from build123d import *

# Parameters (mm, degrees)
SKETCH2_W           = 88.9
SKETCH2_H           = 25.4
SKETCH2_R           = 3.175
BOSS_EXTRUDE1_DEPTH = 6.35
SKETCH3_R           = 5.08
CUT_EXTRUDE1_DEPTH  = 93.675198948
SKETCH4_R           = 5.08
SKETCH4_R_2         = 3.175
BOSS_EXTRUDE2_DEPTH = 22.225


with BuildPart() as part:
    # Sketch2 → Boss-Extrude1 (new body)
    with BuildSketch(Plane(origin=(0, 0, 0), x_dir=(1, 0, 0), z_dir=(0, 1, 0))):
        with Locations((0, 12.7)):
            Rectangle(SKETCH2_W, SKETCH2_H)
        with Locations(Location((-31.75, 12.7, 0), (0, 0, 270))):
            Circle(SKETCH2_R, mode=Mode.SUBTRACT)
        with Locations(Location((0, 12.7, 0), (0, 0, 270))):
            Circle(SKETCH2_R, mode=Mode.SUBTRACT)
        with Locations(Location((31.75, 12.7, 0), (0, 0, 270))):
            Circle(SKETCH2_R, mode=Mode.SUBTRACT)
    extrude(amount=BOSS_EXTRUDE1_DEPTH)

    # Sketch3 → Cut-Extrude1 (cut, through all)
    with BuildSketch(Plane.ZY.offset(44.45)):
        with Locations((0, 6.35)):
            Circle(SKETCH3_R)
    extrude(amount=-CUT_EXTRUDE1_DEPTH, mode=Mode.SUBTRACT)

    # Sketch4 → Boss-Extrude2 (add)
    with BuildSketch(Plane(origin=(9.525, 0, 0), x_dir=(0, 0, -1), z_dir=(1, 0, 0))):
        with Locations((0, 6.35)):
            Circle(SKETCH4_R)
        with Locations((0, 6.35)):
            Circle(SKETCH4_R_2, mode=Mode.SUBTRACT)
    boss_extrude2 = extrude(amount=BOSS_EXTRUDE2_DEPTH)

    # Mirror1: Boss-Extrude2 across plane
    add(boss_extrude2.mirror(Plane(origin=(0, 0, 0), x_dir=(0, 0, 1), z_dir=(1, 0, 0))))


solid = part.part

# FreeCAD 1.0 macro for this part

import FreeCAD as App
import Part
import Sketcher
Q = App.Units.Quantity

doc = App.newDocument("Part")
body = doc.addObject("PartDesign::Body", "Body")

sketch1 = doc.addObject("Sketcher::SketchObject", "Sketch")
body.addObject(sketch1)
sketch1.AttachmentSupport = (doc.XZ_Plane, [""])
sketch1.MapMode = "FlatFace"
sketch1.addGeometry([
    Part.LineSegment(App.Vector(-44.5, -25.4, 0), App.Vector(-44.5, 0, 0)),
    Part.LineSegment(App.Vector(-44.5, 0, 0), App.Vector(44.5, 0, 0)),
    Part.LineSegment(App.Vector(44.5, 0, 0), App.Vector(44.5, -25.4, 0)),
    Part.LineSegment(App.Vector(44.5, -25.4, 0), App.Vector(-44.5, -25.4, 0)),
    Part.Circle(App.Vector(-31.8, -12.7, 0), App.Vector(0, 0, 1), 3.2),
    Part.Circle(App.Vector(0, -12.7, 0), App.Vector(0, 0, 1), 3.2),
    Part.Circle(App.Vector(31.8, -12.7, 0), App.Vector(0, 0, 1), 3.2),
], False)
sketch1.addConstraint([
    Sketcher.Constraint("Coincident", 0, 2, 1, 1),
    Sketcher.Constraint("Coincident", 1, 2, 2, 1),
    Sketcher.Constraint("Coincident", 2, 2, 3, 1),
    Sketcher.Constraint("Coincident", 3, 2, 0, 1),
    Sketcher.Constraint("Vertical", 0),
    Sketcher.Constraint("Horizontal", 1),
    Sketcher.Constraint("Vertical", 2),
    Sketcher.Constraint("Horizontal", 3),
    Sketcher.Constraint("Equal", 4, 5),
    Sketcher.Constraint("Equal", 5, 6),
    Sketcher.Constraint("Symmetric", 0, 2, 1, 2, -1, 1),
    Sketcher.Constraint("Symmetric", 4, 3, 6, 3, -2),
    Sketcher.Constraint("PointOnObject", 5, 3, -2),
    Sketcher.Constraint("Horizontal", 4, 3, 5, 3),
    Sketcher.Constraint("Diameter", 4, Q("0.25 in")),
    Sketcher.Constraint("DistanceY", 0, 1, 0, 2, Q("1 in")),
    Sketcher.Constraint("DistanceX", 1, 1, 1, 2, Q("3.5 in")),
    Sketcher.Constraint("DistanceX", 0, 2, 6, 3, Q("3 in")),
    Sketcher.Constraint("DistanceY", 4, 3, -1, 1, Q("0.5 in")),
])
pad1 = doc.addObject("PartDesign::Pad", "Pad")
body.addObject(pad1)
pad1.Profile = sketch1
pad1.Length = Q("0.25 in")
pad1.Reversed = True

sketch2 = doc.addObject("Sketcher::SketchObject", "Sketch001")
body.addObject(sketch2)
sketch2.AttachmentSupport = (doc.YZ_Plane, [""])
sketch2.MapMode = "FlatFace"
sketch2.AttachmentOffset = App.Placement(App.Vector(0, 0, -1.75 * 25.4), App.Rotation())
sketch2.addGeometry(Part.Circle(App.Vector(6, 0, 0), App.Vector(0, 0, 1), 5), False)
sketch2.addConstraint([
    Sketcher.Constraint("PointOnObject", 0, 3, -1),
    Sketcher.Constraint("Diameter", 0, Q("0.4 in")),
    Sketcher.Constraint("DistanceX", -1, 1, 0, 3, Q("0.25 in")),
])
pocket1 = doc.addObject("PartDesign::Pocket", "Pocket")
body.addObject(pocket1)
pocket1.Profile = sketch2
pocket1.Type = "ThroughAll"
pocket1.Reversed = True

sketch3 = doc.addObject("Sketcher::SketchObject", "Sketch002")
body.addObject(sketch3)
sketch3.AttachmentSupport = (doc.YZ_Plane, [""])
sketch3.MapMode = "FlatFace"
sketch3.AttachmentOffset = App.Placement(App.Vector(0, 0, 0.375 * 25.4), App.Rotation())
sketch3.addGeometry([
    Part.Circle(App.Vector(6.3, 0, 0), App.Vector(0, 0, 1), 5.1),
    Part.Circle(App.Vector(6.3, 0, 0), App.Vector(0, 0, 1), 3.2),
], False)
sketch3.addConstraint([
    Sketcher.Constraint("Coincident", 1, 3, 0, 3),
    Sketcher.Constraint("PointOnObject", 0, 3, -1),
    Sketcher.Constraint("Diameter", 0, Q("0.4 in")),
    Sketcher.Constraint("Diameter", 1, Q("0.25 in")),
    Sketcher.Constraint("DistanceX", -1, 1, 0, 3, Q("0.25 in")),
])
pad2 = doc.addObject("PartDesign::Pad", "Pad001")
body.addObject(pad2)
pad2.Profile = sketch3
pad2.Length = Q("0.875 in")
doc.recompute()

mirrored = doc.addObject("PartDesign::Mirrored", "Mirrored")
body.addObject(mirrored)
mirrored.Originals = [pad2]
mirrored.MirrorPlane = (doc.YZ_Plane, [""])
body.Tip = mirrored

doc.recompute()
